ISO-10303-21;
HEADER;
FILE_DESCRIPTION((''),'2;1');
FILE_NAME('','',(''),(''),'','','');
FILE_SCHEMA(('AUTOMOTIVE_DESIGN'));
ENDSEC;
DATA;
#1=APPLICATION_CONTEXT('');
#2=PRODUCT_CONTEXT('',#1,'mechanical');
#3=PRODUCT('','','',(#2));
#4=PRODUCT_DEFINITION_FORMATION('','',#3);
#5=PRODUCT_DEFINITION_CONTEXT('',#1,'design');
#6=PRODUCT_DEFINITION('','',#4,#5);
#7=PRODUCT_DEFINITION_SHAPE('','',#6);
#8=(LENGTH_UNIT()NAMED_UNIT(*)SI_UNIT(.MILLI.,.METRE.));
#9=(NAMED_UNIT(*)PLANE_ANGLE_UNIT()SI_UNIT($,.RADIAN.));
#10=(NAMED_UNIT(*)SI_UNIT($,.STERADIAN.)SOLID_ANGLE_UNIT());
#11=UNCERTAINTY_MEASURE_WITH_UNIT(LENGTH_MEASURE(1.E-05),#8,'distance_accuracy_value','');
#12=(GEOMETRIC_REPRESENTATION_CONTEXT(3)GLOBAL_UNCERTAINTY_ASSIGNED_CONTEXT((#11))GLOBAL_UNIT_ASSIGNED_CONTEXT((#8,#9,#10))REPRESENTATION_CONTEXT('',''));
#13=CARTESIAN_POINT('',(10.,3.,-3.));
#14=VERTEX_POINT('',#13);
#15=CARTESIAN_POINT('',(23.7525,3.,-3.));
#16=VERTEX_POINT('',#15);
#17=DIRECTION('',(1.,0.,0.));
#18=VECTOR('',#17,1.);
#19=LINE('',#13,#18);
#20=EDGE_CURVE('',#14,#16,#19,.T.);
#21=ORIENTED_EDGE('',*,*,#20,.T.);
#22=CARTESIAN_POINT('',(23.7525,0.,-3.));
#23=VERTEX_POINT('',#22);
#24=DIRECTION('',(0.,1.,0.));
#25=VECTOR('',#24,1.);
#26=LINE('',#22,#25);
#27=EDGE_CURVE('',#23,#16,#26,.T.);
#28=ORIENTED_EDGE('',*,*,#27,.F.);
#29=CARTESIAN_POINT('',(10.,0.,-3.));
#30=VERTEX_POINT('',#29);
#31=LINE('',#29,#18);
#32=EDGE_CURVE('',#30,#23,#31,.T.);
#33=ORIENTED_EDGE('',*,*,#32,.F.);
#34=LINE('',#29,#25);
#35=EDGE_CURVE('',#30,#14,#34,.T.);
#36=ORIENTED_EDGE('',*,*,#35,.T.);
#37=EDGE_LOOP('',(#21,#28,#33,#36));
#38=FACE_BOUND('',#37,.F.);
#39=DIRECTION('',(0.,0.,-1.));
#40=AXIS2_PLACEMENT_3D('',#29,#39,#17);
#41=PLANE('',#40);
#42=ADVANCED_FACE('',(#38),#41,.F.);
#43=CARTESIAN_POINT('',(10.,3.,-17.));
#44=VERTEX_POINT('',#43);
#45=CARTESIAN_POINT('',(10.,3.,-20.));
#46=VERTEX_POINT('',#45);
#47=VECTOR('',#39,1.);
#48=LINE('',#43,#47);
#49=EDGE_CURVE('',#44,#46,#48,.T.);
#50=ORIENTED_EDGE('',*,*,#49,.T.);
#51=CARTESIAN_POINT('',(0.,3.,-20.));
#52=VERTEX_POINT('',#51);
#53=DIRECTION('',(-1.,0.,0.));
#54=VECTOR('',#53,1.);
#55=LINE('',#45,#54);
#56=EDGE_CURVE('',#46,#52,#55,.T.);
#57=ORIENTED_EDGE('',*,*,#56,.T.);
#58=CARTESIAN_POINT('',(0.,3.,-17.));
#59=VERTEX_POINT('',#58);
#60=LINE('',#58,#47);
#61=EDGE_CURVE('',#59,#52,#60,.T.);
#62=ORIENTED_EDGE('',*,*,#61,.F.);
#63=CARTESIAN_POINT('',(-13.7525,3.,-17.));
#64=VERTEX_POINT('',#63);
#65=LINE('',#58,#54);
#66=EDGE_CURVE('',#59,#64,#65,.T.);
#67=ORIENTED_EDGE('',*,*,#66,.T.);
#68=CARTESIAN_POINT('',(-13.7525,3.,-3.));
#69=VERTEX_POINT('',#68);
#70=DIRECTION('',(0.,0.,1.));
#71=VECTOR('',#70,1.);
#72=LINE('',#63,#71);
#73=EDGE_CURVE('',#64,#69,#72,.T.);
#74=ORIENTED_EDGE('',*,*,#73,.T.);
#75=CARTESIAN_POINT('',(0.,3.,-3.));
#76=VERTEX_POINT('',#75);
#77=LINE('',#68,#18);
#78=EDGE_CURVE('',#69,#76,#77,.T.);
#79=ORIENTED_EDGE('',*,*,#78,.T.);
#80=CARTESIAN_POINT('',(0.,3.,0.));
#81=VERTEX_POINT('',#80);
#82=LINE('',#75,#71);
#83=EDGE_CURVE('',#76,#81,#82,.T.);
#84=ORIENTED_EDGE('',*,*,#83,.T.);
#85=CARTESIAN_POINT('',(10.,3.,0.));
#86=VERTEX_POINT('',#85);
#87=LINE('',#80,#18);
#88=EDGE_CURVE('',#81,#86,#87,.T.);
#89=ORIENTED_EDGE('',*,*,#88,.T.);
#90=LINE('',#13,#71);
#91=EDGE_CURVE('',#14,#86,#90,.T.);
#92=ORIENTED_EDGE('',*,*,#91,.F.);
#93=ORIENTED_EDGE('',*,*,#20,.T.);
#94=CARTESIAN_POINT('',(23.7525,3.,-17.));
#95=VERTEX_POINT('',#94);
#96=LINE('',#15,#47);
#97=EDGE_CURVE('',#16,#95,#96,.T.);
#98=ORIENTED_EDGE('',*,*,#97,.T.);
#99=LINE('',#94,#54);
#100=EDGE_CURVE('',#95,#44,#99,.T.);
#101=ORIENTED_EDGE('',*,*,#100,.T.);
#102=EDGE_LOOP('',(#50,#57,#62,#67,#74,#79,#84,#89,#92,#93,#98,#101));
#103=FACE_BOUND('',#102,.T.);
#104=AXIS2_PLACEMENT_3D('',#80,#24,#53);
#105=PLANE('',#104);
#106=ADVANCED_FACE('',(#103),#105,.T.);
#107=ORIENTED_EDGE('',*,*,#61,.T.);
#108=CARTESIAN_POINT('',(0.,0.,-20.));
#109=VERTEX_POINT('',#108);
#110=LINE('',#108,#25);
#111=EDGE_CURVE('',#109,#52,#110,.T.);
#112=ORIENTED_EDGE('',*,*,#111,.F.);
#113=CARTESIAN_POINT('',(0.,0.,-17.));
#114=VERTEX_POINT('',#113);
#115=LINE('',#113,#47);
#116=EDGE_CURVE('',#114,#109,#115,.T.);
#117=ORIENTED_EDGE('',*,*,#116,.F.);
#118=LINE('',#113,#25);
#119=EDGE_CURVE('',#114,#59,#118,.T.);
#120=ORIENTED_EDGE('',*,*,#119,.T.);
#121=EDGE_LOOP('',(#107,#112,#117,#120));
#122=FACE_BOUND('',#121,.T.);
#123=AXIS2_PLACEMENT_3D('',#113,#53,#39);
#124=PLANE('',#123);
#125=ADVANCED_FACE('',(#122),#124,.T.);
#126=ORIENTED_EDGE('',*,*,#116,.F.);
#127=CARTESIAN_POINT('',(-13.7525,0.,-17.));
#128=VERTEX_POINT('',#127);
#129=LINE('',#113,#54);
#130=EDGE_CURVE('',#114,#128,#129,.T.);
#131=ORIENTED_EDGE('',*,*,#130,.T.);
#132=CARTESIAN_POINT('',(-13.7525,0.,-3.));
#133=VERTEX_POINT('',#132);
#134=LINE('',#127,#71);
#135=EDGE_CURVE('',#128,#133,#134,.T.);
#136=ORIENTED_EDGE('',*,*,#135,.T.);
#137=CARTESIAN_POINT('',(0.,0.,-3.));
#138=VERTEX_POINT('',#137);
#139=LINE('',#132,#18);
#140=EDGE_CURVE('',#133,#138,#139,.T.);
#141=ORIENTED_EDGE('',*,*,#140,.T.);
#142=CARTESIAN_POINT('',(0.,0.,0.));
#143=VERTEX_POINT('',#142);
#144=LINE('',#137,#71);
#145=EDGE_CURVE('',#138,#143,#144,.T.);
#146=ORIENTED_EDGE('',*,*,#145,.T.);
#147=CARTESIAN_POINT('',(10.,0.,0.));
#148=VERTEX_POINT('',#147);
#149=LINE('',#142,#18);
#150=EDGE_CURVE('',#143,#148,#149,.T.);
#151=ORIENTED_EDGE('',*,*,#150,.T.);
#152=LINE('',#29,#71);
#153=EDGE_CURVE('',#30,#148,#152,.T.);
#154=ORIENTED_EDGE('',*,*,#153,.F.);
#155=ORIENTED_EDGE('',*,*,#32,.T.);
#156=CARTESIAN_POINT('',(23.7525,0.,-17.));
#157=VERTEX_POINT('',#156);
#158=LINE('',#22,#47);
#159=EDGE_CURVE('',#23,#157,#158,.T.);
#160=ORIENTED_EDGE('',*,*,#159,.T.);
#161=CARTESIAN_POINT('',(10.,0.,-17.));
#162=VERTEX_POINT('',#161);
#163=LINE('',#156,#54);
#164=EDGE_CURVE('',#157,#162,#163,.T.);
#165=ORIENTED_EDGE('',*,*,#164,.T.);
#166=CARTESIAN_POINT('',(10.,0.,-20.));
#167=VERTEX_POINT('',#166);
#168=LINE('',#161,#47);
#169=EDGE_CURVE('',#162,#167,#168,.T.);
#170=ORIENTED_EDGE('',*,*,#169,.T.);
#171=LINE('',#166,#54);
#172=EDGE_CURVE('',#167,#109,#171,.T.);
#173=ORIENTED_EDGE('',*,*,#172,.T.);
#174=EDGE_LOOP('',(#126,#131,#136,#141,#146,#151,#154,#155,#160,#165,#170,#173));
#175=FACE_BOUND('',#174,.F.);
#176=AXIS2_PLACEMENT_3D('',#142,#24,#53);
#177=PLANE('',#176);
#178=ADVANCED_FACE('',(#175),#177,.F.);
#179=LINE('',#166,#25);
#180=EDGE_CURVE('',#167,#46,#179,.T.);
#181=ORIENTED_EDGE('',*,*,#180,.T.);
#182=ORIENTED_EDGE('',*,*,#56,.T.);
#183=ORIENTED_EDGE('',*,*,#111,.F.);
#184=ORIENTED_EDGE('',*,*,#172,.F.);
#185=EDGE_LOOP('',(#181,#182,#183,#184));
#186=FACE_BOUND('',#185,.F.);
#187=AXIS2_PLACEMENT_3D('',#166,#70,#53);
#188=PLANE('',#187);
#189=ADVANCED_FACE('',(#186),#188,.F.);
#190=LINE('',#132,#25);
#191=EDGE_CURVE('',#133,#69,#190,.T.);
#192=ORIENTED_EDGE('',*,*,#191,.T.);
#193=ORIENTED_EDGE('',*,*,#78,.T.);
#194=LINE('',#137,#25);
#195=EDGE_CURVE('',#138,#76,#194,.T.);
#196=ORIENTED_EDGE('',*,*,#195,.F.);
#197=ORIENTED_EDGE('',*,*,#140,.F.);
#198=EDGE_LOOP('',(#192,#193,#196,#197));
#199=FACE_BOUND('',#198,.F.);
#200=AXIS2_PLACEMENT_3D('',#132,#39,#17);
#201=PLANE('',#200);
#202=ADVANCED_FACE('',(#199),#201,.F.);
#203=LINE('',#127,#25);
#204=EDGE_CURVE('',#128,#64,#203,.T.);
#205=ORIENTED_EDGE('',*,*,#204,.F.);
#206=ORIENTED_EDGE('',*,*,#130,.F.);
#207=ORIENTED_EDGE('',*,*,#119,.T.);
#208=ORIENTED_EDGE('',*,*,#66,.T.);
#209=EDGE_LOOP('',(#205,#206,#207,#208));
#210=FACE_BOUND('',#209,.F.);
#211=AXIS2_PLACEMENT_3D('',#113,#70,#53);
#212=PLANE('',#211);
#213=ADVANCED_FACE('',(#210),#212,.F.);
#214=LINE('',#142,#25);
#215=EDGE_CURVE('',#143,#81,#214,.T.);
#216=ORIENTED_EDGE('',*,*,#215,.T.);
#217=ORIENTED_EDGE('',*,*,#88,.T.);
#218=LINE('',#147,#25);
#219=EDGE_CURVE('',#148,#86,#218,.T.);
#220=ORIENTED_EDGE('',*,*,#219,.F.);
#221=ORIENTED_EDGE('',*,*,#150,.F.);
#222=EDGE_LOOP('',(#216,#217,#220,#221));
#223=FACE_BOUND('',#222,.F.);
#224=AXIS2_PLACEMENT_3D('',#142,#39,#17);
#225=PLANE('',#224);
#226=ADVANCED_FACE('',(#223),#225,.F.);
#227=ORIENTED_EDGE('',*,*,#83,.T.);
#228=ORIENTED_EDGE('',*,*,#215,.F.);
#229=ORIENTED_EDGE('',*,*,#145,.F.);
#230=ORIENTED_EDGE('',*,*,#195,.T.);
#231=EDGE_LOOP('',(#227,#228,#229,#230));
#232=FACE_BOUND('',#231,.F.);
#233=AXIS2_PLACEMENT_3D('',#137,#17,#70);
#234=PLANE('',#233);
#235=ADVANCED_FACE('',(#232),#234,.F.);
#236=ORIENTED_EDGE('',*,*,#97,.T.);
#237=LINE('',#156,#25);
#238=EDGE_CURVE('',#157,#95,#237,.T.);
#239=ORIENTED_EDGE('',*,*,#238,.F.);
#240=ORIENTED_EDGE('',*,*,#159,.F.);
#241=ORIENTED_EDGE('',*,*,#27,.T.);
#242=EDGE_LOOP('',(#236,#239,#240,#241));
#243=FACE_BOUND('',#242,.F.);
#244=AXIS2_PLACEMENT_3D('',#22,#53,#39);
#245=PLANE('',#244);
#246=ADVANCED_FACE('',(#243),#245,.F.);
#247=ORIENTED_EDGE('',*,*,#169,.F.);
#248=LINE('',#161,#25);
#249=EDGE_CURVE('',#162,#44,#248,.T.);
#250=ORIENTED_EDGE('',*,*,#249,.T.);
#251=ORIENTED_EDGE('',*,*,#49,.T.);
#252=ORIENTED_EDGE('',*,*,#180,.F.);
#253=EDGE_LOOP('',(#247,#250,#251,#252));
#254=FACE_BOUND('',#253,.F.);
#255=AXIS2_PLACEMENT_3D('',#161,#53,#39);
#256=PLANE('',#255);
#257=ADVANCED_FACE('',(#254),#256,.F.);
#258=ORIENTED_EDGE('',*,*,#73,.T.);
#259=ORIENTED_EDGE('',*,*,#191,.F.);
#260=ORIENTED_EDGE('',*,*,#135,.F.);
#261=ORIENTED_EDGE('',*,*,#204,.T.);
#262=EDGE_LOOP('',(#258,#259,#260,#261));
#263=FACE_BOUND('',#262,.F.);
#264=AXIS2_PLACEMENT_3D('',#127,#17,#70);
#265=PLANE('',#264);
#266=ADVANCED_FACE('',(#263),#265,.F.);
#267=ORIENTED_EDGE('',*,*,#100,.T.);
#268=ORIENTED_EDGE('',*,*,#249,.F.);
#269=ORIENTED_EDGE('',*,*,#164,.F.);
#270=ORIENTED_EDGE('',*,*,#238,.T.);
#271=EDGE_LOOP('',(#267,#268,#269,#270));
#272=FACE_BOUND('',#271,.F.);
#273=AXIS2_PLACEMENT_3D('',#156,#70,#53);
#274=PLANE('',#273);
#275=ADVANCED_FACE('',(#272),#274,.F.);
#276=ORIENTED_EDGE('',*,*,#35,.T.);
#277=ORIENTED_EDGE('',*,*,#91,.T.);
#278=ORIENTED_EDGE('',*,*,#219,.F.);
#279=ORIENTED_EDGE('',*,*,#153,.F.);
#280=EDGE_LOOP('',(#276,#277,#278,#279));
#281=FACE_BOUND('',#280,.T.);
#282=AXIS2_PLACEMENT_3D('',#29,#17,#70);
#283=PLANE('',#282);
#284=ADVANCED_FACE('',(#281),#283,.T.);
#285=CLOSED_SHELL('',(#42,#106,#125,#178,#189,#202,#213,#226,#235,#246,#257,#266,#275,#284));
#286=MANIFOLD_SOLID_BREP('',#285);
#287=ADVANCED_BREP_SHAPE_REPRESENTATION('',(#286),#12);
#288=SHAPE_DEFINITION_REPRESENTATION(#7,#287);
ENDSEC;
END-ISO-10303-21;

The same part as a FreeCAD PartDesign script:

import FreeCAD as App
import Part
import Sketcher

V = App.Vector


def add_polygon(sketch, points):
    """Adds a closed chain of lines whose ends are joined by coincident constraints."""
    first, n = sketch.GeometryCount, len(points)
    for a, b in zip(points, points[1:] + points[:1]):
        sketch.addGeometry(Part.LineSegment(App.Vector(*a, 0), App.Vector(*b, 0)), False)
    for i in range(n):
        sketch.addConstraint(Sketcher.Constraint("Coincident", first + i, 2, first + (i + 1) % n, 1))

doc = App.newDocument("Part")
body = doc.addObject("PartDesign::Body", "Body")

# Sketch on XZ plane
sketch1 = body.newObject("Sketcher::SketchObject", "Sketch")
sketch1.AttachmentSupport = (doc.getObject("XZ_Plane"), [""])
sketch1.MapMode = "FlatFace"
add_polygon(sketch1, [(0, -3), (0, 0), (10, 0), (10, -3), (23.8, -3), (23.8, -17), (10, -17), (10, -20), (0, -20), (0, -17), (-13.8, -17), (-13.8, -3)])  # lines 0-11
sketch1.addConstraint([
    Sketcher.Constraint("Vertical", 0),
    Sketcher.Constraint("Horizontal", 1),
    Sketcher.Constraint("Vertical", 2),
    Sketcher.Constraint("Horizontal", 3),
    Sketcher.Constraint("Vertical", 4),
    Sketcher.Constraint("Horizontal", 5),
    Sketcher.Constraint("Vertical", 6),
    Sketcher.Constraint("Horizontal", 7),
    Sketcher.Constraint("Vertical", 8),
    Sketcher.Constraint("Horizontal", 9),
    Sketcher.Constraint("Vertical", 10),
    Sketcher.Constraint("Horizontal", 11),
    Sketcher.Constraint("Coincident", 0, 2, -1, 1),
    Sketcher.Constraint("PointOnObject", 7, 2, -2),
    Sketcher.Constraint("Horizontal", 5, 2, 8, 2),
    Sketcher.Constraint("Horizontal", 3, 2, 10, 2),
    Sketcher.Constraint("Vertical", 2, 2, 5, 2),
    Sketcher.Constraint("Equal", 5, 9),
    Sketcher.Constraint("Equal", 2, 6),
    Sketcher.Constraint("DistanceX", 1, 1, 1, 2, 10.0),
    Sketcher.Constraint("DistanceY", 0, 1, 0, 2, 3.0),
    Sketcher.Constraint("DistanceY", 6, 2, -1, 1, 20.0),
    Sketcher.Constraint("DistanceX", 3, 1, 3, 2, 13.7525),
])
pad1 = body.newObject("PartDesign::Pad", "Pad")
pad1.Profile = sketch1
pad1.Length = 3
pad1.Reversed = True

doc.recompute()
